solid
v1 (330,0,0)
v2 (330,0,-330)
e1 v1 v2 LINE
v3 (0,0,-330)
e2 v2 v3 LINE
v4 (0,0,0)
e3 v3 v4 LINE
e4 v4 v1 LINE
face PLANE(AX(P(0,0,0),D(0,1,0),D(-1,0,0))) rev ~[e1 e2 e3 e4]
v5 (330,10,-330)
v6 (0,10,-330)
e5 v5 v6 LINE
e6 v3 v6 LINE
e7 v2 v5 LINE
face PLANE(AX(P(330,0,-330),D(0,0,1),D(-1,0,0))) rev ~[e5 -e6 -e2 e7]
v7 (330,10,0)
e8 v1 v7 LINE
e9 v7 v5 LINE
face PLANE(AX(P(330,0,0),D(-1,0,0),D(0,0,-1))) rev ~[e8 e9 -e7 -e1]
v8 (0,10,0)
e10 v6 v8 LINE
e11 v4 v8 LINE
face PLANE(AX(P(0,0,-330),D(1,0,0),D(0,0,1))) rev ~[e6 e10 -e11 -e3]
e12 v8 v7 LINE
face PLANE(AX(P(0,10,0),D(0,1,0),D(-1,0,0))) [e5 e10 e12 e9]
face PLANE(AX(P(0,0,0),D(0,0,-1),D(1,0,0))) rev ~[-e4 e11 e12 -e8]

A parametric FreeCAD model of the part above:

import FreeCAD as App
import Part
import Sketcher


def add_polygon(sketch, points):
    """Adds a closed chain of lines whose ends are joined by coincident constraints."""
    first, n = sketch.GeometryCount, len(points)
    for a, b in zip(points, points[1:] + points[:1]):
        sketch.addGeometry(Part.LineSegment(App.Vector(*a, 0), App.Vector(*b, 0)), False)
    for i in range(n):
        sketch.addConstraint(Sketcher.Constraint("Coincident", first + i, 2, first + (i + 1) % n, 1))

doc = App.newDocument("Part")
params = doc.addObject("Spreadsheet::Sheet", "Params")
for row, (alias, value) in enumerate([
    ("sketch1_width", "330 mm"),
    ("pad1_length", "10 mm"),
], start=1):
    params.set(f"A{row}", alias)
    params.set(f"B{row}", "=" + value)
    params.setAlias(f"B{row}", alias)

body = doc.addObject("PartDesign::Body", "Body")

sketch1 = doc.addObject("Sketcher::SketchObject", "Sketch")
body.addObject(sketch1)
sketch1.AttachmentSupport = (doc.XZ_Plane, [""])
sketch1.MapMode = "FlatFace"
add_polygon(sketch1, [(0, -330), (0, 0), (330, 0), (330, -330)])
sketch1.addConstraint([
    Sketcher.Constraint("Vertical", 0),
    Sketcher.Constraint("Horizontal", 1),
    Sketcher.Constraint("Vertical", 2),
    Sketcher.Constraint("Horizontal", 3),
    Sketcher.Constraint("Coincident", 0, 2, -1, 1),
    Sketcher.Constraint("Equal", 3, 0),
    Sketcher.Constraint("DistanceX", 1, 1, 1, 2, 330.0),
])
sketch1.setExpression("Constraints[10]", "Params.sketch1_width")
pad1 = doc.addObject("PartDesign::Pad", "Pad")
body.addObject(pad1)
pad1.Profile = sketch1
pad1.setExpression("Length", "Params.pad1_length")
pad1.Reversed = True

doc.recompute()
